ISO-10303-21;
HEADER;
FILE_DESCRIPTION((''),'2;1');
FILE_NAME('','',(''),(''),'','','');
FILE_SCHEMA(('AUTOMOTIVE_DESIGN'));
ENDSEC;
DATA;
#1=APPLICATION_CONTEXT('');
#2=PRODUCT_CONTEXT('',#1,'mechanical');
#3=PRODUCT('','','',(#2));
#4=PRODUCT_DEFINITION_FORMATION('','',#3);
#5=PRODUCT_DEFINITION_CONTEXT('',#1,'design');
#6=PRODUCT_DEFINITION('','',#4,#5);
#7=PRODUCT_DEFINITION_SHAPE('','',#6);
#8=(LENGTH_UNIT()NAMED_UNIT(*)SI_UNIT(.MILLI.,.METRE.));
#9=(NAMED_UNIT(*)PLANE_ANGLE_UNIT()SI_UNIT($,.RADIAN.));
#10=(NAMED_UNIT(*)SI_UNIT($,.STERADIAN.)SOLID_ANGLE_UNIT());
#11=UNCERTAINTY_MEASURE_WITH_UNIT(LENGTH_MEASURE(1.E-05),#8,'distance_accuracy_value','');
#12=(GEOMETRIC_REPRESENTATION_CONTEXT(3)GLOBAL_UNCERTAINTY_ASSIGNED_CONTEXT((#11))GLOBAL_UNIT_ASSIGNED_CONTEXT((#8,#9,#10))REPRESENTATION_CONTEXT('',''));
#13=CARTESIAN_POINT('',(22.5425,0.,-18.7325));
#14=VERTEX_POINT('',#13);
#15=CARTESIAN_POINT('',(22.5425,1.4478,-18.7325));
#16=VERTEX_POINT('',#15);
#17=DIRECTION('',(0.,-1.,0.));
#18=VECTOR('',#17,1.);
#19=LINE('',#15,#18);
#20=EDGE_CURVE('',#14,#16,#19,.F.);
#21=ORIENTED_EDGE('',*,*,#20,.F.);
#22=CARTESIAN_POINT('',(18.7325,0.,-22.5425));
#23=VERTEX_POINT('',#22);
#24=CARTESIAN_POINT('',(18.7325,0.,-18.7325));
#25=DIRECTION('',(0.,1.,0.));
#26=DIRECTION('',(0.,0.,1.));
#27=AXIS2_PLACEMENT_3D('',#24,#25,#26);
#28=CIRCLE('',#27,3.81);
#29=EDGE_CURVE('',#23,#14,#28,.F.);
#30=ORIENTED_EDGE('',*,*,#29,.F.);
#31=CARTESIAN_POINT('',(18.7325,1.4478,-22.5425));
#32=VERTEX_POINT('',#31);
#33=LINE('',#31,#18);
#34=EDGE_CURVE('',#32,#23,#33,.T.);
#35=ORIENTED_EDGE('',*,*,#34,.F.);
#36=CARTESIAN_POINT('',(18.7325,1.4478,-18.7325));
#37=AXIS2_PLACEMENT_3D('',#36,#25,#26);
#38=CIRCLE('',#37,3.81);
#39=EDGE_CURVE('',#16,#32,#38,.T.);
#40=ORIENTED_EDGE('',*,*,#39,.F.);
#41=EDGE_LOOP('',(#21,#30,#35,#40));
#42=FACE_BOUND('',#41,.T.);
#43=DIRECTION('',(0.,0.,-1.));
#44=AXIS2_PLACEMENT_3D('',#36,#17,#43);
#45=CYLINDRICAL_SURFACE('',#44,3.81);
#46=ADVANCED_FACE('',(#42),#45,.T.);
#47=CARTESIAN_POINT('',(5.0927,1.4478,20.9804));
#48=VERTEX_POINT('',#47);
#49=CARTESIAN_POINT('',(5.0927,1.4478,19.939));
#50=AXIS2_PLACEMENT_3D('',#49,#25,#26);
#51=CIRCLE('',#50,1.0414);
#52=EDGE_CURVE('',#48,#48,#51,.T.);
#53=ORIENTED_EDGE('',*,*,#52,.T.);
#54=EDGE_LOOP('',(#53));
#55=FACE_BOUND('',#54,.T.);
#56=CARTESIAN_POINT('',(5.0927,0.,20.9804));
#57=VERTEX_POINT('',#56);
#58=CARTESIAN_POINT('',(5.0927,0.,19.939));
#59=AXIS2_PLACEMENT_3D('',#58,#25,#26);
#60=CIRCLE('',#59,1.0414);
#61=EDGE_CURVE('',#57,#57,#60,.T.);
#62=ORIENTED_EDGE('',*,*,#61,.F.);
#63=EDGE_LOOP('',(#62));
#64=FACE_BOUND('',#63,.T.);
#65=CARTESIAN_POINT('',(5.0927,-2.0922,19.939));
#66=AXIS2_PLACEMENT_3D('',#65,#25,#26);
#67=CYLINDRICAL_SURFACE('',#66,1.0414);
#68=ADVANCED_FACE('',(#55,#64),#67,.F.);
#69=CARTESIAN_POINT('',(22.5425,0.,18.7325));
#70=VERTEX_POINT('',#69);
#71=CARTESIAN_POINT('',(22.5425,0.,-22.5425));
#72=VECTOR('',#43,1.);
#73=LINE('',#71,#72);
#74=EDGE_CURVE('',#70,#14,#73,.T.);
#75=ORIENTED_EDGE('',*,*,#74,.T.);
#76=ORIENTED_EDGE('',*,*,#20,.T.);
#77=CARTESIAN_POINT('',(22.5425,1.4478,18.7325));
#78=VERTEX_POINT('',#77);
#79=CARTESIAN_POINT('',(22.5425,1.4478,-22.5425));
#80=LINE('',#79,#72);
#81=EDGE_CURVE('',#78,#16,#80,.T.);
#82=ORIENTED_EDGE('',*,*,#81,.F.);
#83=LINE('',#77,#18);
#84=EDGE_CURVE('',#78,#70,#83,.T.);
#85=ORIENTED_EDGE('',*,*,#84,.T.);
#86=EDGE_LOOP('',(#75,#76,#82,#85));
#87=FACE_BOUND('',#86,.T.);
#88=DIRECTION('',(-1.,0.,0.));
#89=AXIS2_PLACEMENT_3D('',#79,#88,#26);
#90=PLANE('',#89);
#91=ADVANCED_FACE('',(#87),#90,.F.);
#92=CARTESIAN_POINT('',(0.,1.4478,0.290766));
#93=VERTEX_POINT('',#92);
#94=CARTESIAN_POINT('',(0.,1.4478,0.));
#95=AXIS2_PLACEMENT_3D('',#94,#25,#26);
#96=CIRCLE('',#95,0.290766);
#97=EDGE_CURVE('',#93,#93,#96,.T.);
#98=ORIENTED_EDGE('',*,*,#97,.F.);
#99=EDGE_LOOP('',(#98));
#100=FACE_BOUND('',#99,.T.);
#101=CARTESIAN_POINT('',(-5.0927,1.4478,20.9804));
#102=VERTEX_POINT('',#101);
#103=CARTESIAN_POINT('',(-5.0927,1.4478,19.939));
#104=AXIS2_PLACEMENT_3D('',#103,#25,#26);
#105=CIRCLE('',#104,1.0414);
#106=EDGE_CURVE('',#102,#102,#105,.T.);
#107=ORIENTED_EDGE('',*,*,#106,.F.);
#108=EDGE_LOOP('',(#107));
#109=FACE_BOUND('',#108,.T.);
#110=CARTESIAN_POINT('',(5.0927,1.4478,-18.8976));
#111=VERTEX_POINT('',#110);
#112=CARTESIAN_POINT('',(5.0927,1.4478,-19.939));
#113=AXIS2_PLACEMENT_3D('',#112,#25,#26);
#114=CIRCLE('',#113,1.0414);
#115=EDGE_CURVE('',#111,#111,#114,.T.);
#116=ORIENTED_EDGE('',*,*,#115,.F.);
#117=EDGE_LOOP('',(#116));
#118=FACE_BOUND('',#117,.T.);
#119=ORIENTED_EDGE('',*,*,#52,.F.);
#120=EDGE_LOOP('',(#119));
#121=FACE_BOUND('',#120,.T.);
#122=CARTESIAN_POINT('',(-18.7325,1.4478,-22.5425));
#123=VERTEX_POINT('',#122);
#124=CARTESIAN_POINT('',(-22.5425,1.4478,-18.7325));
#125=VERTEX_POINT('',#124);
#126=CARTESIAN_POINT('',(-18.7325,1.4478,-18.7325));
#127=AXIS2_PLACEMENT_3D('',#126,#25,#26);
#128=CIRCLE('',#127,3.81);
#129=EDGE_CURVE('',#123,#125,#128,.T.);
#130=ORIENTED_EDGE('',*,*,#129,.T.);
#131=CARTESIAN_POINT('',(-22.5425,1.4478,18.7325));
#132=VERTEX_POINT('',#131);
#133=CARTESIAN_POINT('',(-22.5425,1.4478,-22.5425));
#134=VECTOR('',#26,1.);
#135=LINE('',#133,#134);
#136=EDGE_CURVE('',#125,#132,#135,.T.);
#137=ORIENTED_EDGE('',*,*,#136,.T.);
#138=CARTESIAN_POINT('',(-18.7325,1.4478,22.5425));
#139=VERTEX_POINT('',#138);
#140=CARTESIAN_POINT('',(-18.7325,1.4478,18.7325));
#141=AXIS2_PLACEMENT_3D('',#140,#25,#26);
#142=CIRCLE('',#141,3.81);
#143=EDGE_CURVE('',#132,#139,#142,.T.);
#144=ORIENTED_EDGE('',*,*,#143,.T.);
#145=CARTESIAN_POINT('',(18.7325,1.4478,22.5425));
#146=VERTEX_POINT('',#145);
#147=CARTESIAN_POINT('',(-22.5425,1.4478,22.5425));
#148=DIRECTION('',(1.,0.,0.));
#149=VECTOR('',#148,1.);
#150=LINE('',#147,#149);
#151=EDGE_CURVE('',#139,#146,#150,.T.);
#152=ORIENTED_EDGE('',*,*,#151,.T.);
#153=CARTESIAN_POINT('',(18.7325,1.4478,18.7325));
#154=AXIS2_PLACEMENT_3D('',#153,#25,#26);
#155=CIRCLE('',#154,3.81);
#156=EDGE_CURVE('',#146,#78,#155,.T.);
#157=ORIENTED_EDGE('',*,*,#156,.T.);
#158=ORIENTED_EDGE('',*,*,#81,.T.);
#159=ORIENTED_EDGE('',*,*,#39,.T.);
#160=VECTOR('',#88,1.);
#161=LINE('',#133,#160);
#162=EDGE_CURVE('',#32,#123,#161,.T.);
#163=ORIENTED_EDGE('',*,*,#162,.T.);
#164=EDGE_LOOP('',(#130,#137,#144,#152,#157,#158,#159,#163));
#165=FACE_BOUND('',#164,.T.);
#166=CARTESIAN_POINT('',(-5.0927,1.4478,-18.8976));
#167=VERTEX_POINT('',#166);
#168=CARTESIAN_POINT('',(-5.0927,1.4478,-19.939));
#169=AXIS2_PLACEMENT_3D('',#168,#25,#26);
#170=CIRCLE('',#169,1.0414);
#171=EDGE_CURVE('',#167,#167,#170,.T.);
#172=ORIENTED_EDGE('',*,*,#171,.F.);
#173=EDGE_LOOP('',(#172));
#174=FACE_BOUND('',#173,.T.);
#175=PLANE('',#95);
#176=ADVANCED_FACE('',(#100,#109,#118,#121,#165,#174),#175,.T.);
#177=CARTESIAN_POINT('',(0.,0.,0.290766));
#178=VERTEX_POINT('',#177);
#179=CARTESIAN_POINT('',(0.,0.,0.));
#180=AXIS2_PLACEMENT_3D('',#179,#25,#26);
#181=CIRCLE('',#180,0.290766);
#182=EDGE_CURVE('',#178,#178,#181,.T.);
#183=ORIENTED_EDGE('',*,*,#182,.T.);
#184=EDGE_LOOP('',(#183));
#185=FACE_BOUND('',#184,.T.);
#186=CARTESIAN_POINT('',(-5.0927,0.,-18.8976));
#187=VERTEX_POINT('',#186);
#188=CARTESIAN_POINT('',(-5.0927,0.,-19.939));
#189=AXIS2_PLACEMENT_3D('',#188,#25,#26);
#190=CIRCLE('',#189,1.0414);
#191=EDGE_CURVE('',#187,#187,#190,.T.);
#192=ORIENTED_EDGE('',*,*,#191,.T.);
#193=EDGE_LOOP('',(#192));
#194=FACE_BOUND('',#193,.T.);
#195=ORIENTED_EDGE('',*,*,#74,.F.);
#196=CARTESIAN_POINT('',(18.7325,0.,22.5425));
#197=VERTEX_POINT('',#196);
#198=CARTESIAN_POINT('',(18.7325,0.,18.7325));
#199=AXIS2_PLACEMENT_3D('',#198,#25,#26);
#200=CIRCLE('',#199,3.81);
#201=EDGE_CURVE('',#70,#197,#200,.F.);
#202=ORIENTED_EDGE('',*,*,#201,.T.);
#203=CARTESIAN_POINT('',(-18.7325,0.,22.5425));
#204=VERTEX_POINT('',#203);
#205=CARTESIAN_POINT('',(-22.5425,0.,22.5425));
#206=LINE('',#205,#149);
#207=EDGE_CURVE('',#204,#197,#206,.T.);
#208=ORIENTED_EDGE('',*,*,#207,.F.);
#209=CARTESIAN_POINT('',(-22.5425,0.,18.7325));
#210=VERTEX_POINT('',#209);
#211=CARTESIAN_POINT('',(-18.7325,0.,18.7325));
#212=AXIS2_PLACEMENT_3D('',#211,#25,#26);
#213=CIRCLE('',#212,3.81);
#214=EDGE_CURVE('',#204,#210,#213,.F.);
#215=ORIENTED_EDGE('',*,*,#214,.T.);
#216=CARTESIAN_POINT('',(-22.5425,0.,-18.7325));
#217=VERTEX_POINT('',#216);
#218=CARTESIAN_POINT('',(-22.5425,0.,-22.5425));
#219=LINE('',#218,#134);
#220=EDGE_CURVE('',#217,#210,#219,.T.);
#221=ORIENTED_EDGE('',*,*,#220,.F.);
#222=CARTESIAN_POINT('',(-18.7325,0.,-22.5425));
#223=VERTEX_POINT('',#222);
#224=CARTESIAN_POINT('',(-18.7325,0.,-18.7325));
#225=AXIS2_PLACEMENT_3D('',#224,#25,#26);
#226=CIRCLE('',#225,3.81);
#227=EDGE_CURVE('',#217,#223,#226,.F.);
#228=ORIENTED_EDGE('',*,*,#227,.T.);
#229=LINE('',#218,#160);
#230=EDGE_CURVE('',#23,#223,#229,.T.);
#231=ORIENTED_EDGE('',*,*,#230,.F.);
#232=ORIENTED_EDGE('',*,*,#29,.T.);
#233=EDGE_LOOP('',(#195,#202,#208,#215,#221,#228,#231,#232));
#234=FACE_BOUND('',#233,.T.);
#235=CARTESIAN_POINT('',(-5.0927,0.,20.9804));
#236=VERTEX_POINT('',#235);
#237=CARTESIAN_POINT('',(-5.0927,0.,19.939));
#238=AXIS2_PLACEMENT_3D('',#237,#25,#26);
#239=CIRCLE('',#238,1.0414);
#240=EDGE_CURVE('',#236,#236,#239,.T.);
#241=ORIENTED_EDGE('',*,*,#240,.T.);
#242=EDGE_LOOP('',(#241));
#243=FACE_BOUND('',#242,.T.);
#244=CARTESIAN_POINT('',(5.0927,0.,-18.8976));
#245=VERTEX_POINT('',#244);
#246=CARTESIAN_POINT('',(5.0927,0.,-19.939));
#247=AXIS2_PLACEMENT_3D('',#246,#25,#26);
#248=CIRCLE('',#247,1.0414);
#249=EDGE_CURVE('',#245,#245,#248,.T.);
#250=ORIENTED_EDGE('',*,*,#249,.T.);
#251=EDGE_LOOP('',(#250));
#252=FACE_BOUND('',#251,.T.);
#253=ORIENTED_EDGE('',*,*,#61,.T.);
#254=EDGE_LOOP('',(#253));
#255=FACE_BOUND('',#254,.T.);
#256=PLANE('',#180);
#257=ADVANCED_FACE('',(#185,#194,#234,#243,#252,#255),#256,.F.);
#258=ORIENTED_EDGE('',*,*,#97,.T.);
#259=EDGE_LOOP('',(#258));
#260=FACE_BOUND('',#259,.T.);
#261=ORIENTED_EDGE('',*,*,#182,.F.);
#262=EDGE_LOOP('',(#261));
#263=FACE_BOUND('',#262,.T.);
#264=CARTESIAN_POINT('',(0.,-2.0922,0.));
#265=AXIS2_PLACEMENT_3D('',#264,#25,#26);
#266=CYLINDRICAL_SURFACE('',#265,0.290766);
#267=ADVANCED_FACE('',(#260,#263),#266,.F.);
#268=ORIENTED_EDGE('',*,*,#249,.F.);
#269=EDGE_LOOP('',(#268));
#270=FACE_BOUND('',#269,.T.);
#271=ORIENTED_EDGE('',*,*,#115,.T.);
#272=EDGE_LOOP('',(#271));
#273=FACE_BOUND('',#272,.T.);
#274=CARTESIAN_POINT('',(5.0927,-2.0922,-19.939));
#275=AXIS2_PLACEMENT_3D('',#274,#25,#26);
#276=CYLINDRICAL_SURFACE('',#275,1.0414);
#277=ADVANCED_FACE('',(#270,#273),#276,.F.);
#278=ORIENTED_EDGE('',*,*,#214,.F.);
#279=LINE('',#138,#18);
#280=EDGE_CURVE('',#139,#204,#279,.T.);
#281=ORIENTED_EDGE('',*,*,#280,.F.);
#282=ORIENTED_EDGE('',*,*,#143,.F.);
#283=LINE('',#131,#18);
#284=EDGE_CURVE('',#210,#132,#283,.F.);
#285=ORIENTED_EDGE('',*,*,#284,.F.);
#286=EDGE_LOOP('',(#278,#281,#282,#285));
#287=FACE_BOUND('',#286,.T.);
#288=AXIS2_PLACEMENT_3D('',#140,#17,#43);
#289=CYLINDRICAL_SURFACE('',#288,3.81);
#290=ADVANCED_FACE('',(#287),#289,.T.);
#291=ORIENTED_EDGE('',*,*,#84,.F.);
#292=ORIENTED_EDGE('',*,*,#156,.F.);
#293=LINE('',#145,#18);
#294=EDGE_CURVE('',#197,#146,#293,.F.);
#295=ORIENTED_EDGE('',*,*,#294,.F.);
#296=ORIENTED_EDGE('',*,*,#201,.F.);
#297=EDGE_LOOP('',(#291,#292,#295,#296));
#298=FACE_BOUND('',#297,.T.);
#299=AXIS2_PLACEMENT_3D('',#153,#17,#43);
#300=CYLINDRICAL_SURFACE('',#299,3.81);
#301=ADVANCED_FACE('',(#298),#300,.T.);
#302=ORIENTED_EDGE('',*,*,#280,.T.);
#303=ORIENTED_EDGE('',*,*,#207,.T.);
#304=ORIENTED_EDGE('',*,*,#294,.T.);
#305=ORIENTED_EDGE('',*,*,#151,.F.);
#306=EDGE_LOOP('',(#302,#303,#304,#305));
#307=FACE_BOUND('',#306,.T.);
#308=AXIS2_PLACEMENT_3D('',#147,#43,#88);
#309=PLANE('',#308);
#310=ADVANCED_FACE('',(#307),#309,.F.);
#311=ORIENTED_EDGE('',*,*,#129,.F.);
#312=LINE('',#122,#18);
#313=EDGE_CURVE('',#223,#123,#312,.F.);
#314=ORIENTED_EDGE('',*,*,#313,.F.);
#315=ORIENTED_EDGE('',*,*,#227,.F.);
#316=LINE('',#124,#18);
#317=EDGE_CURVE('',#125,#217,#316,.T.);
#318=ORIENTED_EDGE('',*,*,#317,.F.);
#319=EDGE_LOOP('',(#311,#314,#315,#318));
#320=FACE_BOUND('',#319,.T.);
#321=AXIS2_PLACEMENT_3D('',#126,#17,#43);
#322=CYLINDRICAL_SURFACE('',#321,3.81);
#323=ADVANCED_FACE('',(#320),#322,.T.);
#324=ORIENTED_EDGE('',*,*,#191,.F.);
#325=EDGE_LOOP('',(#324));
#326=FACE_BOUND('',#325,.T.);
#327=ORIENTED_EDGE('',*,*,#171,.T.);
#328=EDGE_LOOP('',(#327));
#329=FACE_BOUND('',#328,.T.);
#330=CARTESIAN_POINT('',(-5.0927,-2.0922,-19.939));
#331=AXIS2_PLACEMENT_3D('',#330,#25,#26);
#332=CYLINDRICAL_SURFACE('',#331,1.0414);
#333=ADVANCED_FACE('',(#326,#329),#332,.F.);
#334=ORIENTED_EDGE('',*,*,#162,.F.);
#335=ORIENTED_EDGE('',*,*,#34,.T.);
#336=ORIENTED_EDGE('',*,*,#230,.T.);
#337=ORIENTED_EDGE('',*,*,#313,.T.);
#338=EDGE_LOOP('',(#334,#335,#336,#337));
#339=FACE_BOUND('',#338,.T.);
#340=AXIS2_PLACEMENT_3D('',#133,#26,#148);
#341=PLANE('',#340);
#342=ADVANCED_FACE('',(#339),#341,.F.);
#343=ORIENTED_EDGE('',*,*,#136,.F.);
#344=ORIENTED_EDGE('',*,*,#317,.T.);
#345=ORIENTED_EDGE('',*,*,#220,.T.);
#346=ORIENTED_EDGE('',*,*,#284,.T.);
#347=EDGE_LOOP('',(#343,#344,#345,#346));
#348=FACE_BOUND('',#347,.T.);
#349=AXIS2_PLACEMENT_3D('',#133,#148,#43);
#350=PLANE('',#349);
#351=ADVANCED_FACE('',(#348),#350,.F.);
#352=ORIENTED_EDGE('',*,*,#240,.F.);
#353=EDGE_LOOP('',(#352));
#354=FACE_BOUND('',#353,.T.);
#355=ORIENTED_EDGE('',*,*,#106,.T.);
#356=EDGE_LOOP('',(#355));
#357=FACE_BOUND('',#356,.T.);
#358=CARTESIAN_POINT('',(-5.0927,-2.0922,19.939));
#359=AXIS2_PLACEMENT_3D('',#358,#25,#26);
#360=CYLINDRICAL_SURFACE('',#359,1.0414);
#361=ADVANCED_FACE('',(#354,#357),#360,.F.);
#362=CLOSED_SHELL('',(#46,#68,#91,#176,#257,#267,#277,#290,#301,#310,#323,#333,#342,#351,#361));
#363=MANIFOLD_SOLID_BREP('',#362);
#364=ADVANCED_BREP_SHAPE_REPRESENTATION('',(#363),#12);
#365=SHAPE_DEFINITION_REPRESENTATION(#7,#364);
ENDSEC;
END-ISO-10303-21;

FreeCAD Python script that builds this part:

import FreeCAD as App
import Part
import Sketcher

V = App.Vector
Q = App.Units.Quantity


def edges_at(feature, points):
    """Names of the edges that pass closest to the given points."""
    edges = feature.Shape.Edges
    near = lambda p: min(range(len(edges)), key=lambda i: edges[i].distToShape(Part.Vertex(*p))[0])
    return sorted({f"Edge{near(p) + 1}" for p in points})

doc = App.newDocument("Part")
body = doc.addObject("PartDesign::Body", "Body")

# Sketch on XZ plane
sketch1 = body.newObject("Sketcher::SketchObject", "Sketch")
sketch1.AttachmentSupport = (doc.getObject("XZ_Plane"), [""])
sketch1.MapMode = "FlatFace"
sketch1.addGeometry(Part.LineSegment(V(-23, -23, 0), V(-23, 23, 0)), False)
sketch1.addGeometry(Part.LineSegment(V(-23, 23, 0), V(23, 23, 0)), False)
sketch1.addGeometry(Part.LineSegment(V(23, 23, 0), V(23, -23, 0)), False)
sketch1.addGeometry(Part.LineSegment(V(23, -23, 0), V(-23, -23, 0)), False)
sketch1.addConstraint(Sketcher.Constraint("Coincident", 0, 2, 1, 1))
sketch1.addConstraint(Sketcher.Constraint("Coincident", 1, 2, 2, 1))
sketch1.addConstraint(Sketcher.Constraint("Coincident", 2, 2, 3, 1))
sketch1.addConstraint(Sketcher.Constraint("Coincident", 3, 2, 0, 1))
sketch1.addConstraint(Sketcher.Constraint("Vertical", 0))
sketch1.addConstraint(Sketcher.Constraint("Horizontal", 1))
sketch1.addConstraint(Sketcher.Constraint("Vertical", 2))
sketch1.addConstraint(Sketcher.Constraint("Horizontal", 3))
sketch1.addConstraint(Sketcher.Constraint("Symmetric", 0, 2, 2, 2, -1, 1))
sketch1.addConstraint(Sketcher.Constraint("Equal", 3, 0))
sketch1.addConstraint(Sketcher.Constraint("DistanceX", 1, 1, 1, 2, Q("1.775 in")))
pad1 = body.newObject("PartDesign::Pad", "Pad")
pad1.Profile = sketch1
pad1.Length = Q("0.057 in")
pad1.Reversed = True

# Sketch on XZ plane
sketch2 = body.newObject("Sketcher::SketchObject", "Sketch001")
sketch2.AttachmentSupport = (doc.getObject("XZ_Plane"), [""])
sketch2.MapMode = "FlatFace"
sketch2.AttachmentOffset = App.Placement(V(0, 0, -0.057 * 25.4), App.Rotation())
sketch2.addGeometry(Part.Circle(V(0, 0, 0), V(0, 0, 1), 0.29), False)
sketch2.addGeometry(Part.Circle(V(-5.09, -19.94, 0), V(0, 0, 1), 1.04), False)
sketch2.addGeometry(Part.Circle(V(5.09, -19.94, 0), V(0, 0, 1), 1.04), False)
sketch2.addGeometry(Part.Circle(V(5.09, 19.94, 0), V(0, 0, 1), 1.04), False)
sketch2.addGeometry(Part.Circle(V(-5.09, 19.94, 0), V(0, 0, 1), 1.04), False)
sketch2.addConstraint(Sketcher.Constraint("Coincident", 0, 3, -1, 1))
sketch2.addConstraint(Sketcher.Constraint("Equal", 1, 2))
sketch2.addConstraint(Sketcher.Constraint("Equal", 2, 3))
sketch2.addConstraint(Sketcher.Constraint("Equal", 3, 4))
sketch2.addConstraint(Sketcher.Constraint("Symmetric", 1, 3, 3, 3, -1, 1))
sketch2.addConstraint(Sketcher.Constraint("Symmetric", 2, 3, 4, 3, -1, 1))
sketch2.addConstraint(Sketcher.Constraint("Symmetric", 1, 3, 2, 3, -2))
sketch2.addConstraint(Sketcher.Constraint("Diameter", 1, Q("0.082 in")))
sketch2.addConstraint(Sketcher.Constraint("DistanceY", 2, 3, 3, 3, Q("1.57 in")))
sketch2.addConstraint(Sketcher.Constraint("DistanceX", 1, 3, 2, 3, Q("0.401 in")))
sketch2.addConstraint(Sketcher.Constraint("Diameter", 0, Q("0.581532 mm")))
pocket1 = body.newObject("PartDesign::Pocket", "Pocket")
pocket1.Profile = sketch2
pocket1.Length = 3.54
pocket1.Reversed = True
doc.recompute()

fillet = body.newObject("PartDesign::Fillet", "Fillet")
fillet.Base = (pocket1, edges_at(pocket1, [
    (22.543, 0.724, 22.543),
    (-22.543, 0.724, 22.543),
    (-22.543, 0.724, -22.543),
    (22.543, 0.724, -22.543),
]))
fillet.Radius = Q("0.15 in")

doc.recompute()
